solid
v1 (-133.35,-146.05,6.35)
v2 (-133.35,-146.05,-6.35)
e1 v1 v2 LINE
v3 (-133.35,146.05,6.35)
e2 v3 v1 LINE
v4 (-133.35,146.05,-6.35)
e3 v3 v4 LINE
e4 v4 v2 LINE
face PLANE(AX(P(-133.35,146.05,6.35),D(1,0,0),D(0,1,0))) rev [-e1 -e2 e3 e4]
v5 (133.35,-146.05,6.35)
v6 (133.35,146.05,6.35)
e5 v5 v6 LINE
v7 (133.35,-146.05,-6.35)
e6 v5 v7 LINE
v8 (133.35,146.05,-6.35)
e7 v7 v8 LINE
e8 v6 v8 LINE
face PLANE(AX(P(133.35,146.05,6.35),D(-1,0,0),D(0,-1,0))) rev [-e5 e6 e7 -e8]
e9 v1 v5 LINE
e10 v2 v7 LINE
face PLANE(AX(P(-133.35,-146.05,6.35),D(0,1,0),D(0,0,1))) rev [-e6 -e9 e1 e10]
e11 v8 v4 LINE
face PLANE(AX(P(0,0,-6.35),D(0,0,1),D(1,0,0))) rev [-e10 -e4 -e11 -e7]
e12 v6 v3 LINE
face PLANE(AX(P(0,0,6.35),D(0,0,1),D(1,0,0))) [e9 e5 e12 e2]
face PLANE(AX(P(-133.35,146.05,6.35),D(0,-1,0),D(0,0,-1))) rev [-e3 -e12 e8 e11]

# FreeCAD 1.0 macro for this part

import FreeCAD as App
import Part
import Sketcher
Q = App.Units.Quantity

doc = App.newDocument("Part")
body = doc.addObject("PartDesign::Body", "Body")

sketch1 = body.newObject("Sketcher::SketchObject", "Sketch")
sketch1.AttachmentSupport = (doc.getObject("XY_Plane"), [""])
sketch1.MapMode = "FlatFace"
sketch1.addGeometry(Part.LineSegment(App.Vector(-133, 146, 0), App.Vector(-133, -146, 0)), False)
sketch1.addGeometry(Part.LineSegment(App.Vector(-133, -146, 0), App.Vector(133, -146, 0)), False)
sketch1.addGeometry(Part.LineSegment(App.Vector(133, -146, 0), App.Vector(133, 146, 0)), False)
sketch1.addGeometry(Part.LineSegment(App.Vector(133, 146, 0), App.Vector(-133, 146, 0)), False)
sketch1.addConstraint(Sketcher.Constraint("Coincident", 0, 2, 1, 1))
sketch1.addConstraint(Sketcher.Constraint("Coincident", 1, 2, 2, 1))
sketch1.addConstraint(Sketcher.Constraint("Coincident", 2, 2, 3, 1))
sketch1.addConstraint(Sketcher.Constraint("Coincident", 3, 2, 0, 1))
sketch1.addConstraint(Sketcher.Constraint("Vertical", 0))
sketch1.addConstraint(Sketcher.Constraint("Horizontal", 1))
sketch1.addConstraint(Sketcher.Constraint("Vertical", 2))
sketch1.addConstraint(Sketcher.Constraint("Horizontal", 3))
sketch1.addConstraint(Sketcher.Constraint("Symmetric", 0, 2, 2, 2, -1, 1))
sketch1.addConstraint(Sketcher.Constraint("DistanceX", 1, 1, 1, 2, Q("10.5 in")))
sketch1.addConstraint(Sketcher.Constraint("DistanceY", 0, 2, 0, 1, Q("11.5 in")))
pad1 = body.newObject("PartDesign::Pad", "Pad")
pad1.Profile = sketch1
pad1.Length = Q("0.5 in")
pad1.Midplane = True

doc.recompute()
